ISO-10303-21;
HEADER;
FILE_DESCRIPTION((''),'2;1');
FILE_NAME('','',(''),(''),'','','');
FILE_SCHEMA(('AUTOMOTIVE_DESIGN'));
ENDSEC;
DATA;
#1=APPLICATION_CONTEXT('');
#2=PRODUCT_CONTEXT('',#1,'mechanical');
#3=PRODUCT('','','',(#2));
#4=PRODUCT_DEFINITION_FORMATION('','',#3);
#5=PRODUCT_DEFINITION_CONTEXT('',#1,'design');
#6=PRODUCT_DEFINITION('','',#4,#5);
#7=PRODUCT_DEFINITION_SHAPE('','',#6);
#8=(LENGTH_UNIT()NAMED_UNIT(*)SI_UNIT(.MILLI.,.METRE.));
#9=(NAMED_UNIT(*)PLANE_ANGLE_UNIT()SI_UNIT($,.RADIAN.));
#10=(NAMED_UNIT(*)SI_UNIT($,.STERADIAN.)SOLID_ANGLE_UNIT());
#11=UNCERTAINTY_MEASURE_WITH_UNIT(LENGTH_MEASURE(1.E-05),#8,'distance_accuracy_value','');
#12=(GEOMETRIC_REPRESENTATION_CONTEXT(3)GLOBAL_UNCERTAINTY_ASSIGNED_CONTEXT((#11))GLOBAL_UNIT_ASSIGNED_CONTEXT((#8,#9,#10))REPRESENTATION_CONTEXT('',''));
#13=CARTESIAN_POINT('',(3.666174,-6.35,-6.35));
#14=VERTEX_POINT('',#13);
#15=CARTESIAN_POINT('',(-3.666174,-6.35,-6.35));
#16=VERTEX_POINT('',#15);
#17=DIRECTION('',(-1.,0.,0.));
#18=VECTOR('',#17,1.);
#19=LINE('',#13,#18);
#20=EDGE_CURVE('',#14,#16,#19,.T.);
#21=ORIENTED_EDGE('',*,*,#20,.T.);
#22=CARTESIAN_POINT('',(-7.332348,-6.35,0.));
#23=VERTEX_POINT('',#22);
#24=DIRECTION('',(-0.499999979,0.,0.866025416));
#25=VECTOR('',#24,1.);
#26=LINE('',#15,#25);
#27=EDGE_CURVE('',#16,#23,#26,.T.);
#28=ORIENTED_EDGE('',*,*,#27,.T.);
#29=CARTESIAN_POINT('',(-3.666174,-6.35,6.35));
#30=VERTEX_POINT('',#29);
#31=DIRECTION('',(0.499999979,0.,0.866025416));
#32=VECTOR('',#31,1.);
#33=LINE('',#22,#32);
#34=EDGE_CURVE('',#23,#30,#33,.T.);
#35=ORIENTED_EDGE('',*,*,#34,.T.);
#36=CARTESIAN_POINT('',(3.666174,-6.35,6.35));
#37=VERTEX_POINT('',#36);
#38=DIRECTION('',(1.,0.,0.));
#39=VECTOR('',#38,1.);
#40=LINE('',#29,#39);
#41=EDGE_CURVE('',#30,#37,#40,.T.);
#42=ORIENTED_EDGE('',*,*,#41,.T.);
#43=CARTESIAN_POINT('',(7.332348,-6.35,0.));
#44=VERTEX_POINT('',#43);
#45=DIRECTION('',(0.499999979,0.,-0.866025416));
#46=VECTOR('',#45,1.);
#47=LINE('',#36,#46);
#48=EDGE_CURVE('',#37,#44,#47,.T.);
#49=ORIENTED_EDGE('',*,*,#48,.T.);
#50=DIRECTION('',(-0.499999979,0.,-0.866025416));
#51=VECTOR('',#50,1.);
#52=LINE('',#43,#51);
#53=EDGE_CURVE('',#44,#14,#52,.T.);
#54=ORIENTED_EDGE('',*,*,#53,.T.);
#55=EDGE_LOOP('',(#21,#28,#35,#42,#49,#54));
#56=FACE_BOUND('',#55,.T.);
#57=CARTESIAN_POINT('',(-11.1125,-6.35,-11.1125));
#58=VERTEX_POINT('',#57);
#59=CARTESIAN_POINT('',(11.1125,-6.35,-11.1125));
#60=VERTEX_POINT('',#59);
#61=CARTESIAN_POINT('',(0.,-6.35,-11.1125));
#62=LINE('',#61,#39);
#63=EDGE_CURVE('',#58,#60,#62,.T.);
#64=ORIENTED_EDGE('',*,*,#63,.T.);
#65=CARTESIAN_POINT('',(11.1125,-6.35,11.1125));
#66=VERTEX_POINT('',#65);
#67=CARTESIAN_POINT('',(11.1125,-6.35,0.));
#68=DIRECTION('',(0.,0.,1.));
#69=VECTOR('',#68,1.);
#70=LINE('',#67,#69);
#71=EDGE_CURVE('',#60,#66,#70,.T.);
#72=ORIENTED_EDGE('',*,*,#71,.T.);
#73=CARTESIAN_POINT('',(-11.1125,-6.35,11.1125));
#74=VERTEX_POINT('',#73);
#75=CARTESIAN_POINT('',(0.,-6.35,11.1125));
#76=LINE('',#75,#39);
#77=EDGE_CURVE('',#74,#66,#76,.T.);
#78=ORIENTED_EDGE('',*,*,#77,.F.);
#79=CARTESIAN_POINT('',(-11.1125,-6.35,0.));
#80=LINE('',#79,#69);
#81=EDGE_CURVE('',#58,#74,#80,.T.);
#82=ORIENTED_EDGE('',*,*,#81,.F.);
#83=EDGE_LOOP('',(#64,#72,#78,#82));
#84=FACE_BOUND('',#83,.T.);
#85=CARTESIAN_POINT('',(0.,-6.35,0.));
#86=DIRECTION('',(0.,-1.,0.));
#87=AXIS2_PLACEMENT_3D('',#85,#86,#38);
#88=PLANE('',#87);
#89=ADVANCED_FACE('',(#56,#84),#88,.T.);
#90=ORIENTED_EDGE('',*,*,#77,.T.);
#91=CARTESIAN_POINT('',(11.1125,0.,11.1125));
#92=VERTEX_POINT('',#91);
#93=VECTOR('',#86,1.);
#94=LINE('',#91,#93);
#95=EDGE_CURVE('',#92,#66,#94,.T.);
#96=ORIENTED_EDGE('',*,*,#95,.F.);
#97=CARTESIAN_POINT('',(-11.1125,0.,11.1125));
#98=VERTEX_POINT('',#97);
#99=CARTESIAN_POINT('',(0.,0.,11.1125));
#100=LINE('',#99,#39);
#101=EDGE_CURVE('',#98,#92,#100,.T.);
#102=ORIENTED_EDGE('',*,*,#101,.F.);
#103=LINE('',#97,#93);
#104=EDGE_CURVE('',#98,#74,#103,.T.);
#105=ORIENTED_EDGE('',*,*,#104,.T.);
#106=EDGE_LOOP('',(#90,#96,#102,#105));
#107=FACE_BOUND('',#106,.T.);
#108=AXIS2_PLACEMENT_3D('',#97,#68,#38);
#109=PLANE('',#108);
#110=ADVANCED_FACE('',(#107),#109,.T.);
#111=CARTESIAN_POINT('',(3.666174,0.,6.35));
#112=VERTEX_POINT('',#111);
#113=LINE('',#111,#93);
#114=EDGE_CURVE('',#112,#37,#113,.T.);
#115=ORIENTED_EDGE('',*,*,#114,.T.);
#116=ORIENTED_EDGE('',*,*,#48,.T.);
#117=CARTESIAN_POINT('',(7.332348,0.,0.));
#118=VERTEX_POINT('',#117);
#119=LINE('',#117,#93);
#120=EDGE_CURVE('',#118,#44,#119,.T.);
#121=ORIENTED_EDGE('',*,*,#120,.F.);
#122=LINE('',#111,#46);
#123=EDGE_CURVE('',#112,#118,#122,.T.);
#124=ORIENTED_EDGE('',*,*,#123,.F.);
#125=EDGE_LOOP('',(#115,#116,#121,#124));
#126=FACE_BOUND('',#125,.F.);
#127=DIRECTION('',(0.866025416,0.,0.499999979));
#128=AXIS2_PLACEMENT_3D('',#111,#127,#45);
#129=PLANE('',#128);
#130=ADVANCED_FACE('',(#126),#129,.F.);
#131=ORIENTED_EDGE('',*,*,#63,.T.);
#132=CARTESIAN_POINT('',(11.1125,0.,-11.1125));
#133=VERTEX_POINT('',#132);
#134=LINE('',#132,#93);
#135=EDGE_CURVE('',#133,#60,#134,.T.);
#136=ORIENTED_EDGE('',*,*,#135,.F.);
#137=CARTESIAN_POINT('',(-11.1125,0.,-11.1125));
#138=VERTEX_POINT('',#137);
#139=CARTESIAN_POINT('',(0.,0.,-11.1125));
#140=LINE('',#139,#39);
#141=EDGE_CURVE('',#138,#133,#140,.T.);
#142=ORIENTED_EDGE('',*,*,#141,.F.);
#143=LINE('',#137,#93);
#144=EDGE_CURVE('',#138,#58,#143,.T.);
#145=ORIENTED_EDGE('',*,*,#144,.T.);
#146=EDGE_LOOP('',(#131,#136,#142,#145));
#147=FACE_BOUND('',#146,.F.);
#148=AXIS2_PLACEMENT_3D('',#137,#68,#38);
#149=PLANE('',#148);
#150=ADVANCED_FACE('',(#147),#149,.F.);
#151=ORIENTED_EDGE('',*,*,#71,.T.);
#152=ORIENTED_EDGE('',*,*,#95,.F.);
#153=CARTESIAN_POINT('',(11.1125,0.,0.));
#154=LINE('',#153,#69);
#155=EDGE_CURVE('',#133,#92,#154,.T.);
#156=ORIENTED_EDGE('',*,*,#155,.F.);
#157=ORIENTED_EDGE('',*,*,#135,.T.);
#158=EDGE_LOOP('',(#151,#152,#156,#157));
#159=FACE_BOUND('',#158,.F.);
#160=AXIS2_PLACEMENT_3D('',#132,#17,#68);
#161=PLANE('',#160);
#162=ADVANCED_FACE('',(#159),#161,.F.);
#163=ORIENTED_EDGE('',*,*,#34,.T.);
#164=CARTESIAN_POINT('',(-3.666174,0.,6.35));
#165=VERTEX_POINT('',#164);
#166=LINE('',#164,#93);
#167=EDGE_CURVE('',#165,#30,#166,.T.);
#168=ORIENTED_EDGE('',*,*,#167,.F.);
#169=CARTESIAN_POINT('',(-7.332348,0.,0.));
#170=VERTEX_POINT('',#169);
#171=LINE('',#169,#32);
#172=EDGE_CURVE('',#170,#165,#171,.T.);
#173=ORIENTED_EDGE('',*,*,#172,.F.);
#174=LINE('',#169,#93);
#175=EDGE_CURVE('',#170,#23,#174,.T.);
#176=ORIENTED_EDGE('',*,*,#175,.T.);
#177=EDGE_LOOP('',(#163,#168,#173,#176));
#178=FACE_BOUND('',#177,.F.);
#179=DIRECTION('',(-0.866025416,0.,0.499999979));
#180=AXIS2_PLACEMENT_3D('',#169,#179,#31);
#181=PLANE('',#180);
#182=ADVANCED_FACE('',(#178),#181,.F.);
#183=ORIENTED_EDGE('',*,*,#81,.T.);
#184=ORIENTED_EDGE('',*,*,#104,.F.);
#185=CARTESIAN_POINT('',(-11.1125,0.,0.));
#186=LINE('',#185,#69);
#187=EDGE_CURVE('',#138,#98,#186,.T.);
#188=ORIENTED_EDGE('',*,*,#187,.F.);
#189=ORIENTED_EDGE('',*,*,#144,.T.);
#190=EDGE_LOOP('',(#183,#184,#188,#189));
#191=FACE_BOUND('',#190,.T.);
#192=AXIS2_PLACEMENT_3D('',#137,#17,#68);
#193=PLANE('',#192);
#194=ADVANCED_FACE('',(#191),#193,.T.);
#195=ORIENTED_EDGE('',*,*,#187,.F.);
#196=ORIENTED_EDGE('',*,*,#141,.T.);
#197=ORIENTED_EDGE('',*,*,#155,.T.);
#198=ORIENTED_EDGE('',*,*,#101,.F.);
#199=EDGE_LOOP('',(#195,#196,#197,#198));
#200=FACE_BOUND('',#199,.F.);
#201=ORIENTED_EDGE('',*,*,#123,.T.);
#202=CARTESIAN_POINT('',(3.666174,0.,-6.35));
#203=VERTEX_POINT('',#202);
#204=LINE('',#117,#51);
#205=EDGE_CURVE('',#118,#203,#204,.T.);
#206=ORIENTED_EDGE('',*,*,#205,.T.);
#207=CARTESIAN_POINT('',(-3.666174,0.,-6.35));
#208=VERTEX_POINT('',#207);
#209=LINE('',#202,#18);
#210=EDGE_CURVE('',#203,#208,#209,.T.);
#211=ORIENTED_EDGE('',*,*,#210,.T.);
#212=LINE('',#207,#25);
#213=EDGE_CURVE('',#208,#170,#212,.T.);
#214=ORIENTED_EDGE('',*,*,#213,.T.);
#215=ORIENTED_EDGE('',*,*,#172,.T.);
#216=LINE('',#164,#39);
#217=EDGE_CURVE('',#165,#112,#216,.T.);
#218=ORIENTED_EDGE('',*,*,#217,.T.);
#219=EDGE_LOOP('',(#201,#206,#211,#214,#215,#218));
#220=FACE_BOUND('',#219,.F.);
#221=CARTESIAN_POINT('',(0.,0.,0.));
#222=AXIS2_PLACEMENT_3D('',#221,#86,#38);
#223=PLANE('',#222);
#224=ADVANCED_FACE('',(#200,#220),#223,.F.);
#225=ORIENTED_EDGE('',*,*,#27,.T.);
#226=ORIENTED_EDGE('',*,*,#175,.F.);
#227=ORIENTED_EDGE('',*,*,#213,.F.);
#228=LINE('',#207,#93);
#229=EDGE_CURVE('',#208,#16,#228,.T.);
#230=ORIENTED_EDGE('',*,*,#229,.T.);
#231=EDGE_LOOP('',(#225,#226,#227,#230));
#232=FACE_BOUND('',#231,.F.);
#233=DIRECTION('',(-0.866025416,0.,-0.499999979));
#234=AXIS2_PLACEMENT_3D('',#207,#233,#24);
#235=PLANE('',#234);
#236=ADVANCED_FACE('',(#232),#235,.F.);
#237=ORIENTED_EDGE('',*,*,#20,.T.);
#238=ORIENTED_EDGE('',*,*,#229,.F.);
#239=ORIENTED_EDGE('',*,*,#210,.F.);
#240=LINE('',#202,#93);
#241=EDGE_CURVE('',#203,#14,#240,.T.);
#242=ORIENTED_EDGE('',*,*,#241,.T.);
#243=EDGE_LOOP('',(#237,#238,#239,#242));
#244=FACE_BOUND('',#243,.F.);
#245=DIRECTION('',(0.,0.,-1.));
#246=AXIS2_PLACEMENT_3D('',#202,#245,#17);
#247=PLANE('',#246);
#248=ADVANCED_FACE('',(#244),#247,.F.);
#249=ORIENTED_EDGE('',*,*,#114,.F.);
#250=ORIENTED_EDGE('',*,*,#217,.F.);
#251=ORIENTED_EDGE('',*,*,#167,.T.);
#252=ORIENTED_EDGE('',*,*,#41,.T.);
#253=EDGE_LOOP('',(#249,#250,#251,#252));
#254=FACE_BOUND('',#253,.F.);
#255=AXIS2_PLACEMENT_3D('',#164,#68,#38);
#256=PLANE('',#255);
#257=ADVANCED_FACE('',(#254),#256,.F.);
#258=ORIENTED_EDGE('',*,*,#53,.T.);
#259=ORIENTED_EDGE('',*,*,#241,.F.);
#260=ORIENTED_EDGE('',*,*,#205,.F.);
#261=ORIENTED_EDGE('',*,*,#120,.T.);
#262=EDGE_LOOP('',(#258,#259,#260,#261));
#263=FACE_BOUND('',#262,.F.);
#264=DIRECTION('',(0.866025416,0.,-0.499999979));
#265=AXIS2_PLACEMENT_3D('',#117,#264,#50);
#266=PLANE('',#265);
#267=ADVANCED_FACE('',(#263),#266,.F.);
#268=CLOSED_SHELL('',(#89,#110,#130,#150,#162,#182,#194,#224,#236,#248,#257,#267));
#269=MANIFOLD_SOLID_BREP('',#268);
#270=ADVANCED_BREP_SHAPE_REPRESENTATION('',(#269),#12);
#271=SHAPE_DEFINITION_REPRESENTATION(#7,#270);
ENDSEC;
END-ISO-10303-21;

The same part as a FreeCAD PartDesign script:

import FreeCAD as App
import Part
import Sketcher

V = App.Vector
Q = App.Units.Quantity

doc = App.newDocument("Part")
body = doc.addObject("PartDesign::Body", "Body")

# Sketch on XZ plane
sketch1 = body.newObject("Sketcher::SketchObject", "Sketch")
sketch1.AttachmentSupport = (doc.getObject("XZ_Plane"), [""])
sketch1.MapMode = "FlatFace"
sketch1.addGeometry([
    Part.LineSegment(V(-11.1125, 11.1125, 0), V(-11.1125, -11.1125, 0)),  # 0
    Part.LineSegment(V(-11.1125, -11.1125, 0), V(11.1125, -11.1125, 0)),  # 1
    Part.LineSegment(V(11.1125, -11.1125, 0), V(11.1125, 11.1125, 0)),  # 2
    Part.LineSegment(V(11.1125, 11.1125, 0), V(-11.1125, 11.1125, 0)),  # 3
    Part.LineSegment(V(-3.666174, -6.35, 0), V(-7.332348, 0, 0)),  # 4
    Part.LineSegment(V(-7.332348, 0, 0), V(-3.666174, 6.35, 0)),  # 5
    Part.LineSegment(V(-3.666174, 6.35, 0), V(3.666174, 6.35, 0)),  # 6
    Part.LineSegment(V(3.666174, 6.35, 0), V(7.332348, 0, 0)),  # 7
    Part.LineSegment(V(7.332348, 0, 0), V(3.666174, -6.35, 0)),  # 8
    Part.LineSegment(V(3.666174, -6.35, 0), V(-3.666174, -6.35, 0)),  # 9
], False)
sketch1.addConstraint([
    Sketcher.Constraint("Coincident", 0, 2, 1, 1),
    Sketcher.Constraint("Coincident", 1, 2, 2, 1),
    Sketcher.Constraint("Coincident", 2, 2, 3, 1),
    Sketcher.Constraint("Coincident", 3, 2, 0, 1),
    Sketcher.Constraint("Coincident", 4, 2, 5, 1),
    Sketcher.Constraint("Coincident", 5, 2, 6, 1),
    Sketcher.Constraint("Coincident", 6, 2, 7, 1),
    Sketcher.Constraint("Coincident", 7, 2, 8, 1),
    Sketcher.Constraint("Coincident", 8, 2, 9, 1),
    Sketcher.Constraint("Coincident", 9, 2, 4, 1),
    Sketcher.Constraint("Vertical", 0),
    Sketcher.Constraint("Horizontal", 1),
    Sketcher.Constraint("Vertical", 2),
    Sketcher.Constraint("Horizontal", 3),
    Sketcher.Constraint("Horizontal", 6),
    Sketcher.Constraint("Horizontal", 9),
    Sketcher.Constraint("Symmetric", 0, 2, 2, 2, -1, 1),
    Sketcher.Constraint("Symmetric", 4, 2, 7, 2, -1, 1),
    Sketcher.Constraint("Symmetric", 5, 2, 8, 2, -1, 1),
    Sketcher.Constraint("PointOnObject", 4, 2, -1),
    Sketcher.Constraint("Parallel", 4, 7),
    Sketcher.Constraint("Vertical", 6, 2, 8, 2),
    Sketcher.Constraint("Equal", 3, 0),
    Sketcher.Constraint("Angle", 4, Q("119.999999 deg")),
    Sketcher.Constraint("DistanceY", 8, 2, 6, 2, Q("0.5 in")),
    Sketcher.Constraint("DistanceX", 1, 1, 1, 2, Q("0.875 in")),
    Sketcher.Constraint("DistanceX", 6, 1, 6, 2, Q("7.332348 mm")),
])
pad1 = body.newObject("PartDesign::Pad", "Pad")
pad1.Profile = sketch1
pad1.Length = Q("0.25 in")

doc.recompute()
